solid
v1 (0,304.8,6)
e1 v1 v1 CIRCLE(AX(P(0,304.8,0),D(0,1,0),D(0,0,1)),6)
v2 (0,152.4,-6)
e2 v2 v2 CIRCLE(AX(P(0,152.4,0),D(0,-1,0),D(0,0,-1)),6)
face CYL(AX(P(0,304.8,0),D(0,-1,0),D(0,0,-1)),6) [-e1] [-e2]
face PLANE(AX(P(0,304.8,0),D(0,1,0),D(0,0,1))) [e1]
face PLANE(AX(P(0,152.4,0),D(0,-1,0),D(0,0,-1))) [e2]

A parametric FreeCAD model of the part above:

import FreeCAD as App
import Part
import Sketcher

V = App.Vector
Q = App.Units.Quantity

doc = App.newDocument("Part")
body = doc.addObject("PartDesign::Body", "Body")

# Sketch on XZ plane
sketch1 = body.newObject("Sketcher::SketchObject", "Sketch")
sketch1.AttachmentSupport = (doc.getObject("XZ_Plane"), [""])
sketch1.MapMode = "FlatFace"
sketch1.addGeometry(Part.Circle(V(0, 0, 0), V(0, 0, 1), 6), False)
sketch1.addConstraint([
    Sketcher.Constraint("Coincident", 0, 3, -1, 1),
    Sketcher.Constraint("Diameter", 0, 12.0),
])
pad1 = body.newObject("PartDesign::Pad", "Pad")
pad1.Profile = sketch1
pad1.Length = Q("12 in")
pad1.Reversed = True

# Sketch on XZ plane
sketch2 = body.newObject("Sketcher::SketchObject", "Sketch001")
sketch2.AttachmentSupport = (doc.getObject("XZ_Plane"), [""])
sketch2.MapMode = "FlatFace"
sketch2.addGeometry(Part.Circle(V(0, 0, 0), V(0, 0, 1), 11), False)
sketch2.addConstraint([
    Sketcher.Constraint("Coincident", 0, 3, -1, 1),
    Sketcher.Constraint("Diameter", 0, 22.523985),
])
pocket1 = body.newObject("PartDesign::Pocket", "Pocket")
pocket1.Profile = sketch2
pocket1.Length = Q("6 in")

doc.recompute()
